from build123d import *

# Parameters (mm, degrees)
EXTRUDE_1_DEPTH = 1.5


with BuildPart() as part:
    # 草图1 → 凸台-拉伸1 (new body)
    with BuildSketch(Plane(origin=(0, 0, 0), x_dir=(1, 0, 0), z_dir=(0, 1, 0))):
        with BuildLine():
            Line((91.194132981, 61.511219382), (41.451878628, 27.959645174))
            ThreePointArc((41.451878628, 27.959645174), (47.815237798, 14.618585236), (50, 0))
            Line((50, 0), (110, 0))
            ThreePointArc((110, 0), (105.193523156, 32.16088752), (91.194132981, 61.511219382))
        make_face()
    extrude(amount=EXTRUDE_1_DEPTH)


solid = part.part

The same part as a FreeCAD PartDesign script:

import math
import FreeCAD as App
import Part
import Sketcher

V = App.Vector
Q = App.Units.Quantity

doc = App.newDocument("Part")
body = doc.addObject("PartDesign::Body", "Body")

# Sketch on XZ plane
sketch1 = body.newObject("Sketcher::SketchObject", "Sketch")
sketch1.AttachmentSupport = (doc.getObject("XZ_Plane"), [""])
sketch1.MapMode = "FlatFace"
sketch1.addGeometry(Part.LineSegment(V(91, -62, 0), V(41, -28, 0)), False)
sketch1.addGeometry(Part.ArcOfCircle(Part.Circle(V(0, 0, 0), V(0, 0, 1), 50), math.radians(-34), math.radians(0)), False)
sketch1.addGeometry(Part.LineSegment(V(50, 0, 0), V(110, 0, 0)), False)
sketch1.addGeometry(Part.ArcOfCircle(Part.Circle(V(0, 0, 0), V(0, 0, 1), 110), math.radians(-34), math.radians(0)), False)
sketch1.addConstraint(Sketcher.Constraint("Coincident", 0, 2, 1, 1))
sketch1.addConstraint(Sketcher.Constraint("Coincident", 1, 2, 2, 1))
sketch1.addConstraint(Sketcher.Constraint("Coincident", 2, 2, 3, 2))
sketch1.addConstraint(Sketcher.Constraint("Coincident", 3, 1, 0, 1))
sketch1.addConstraint(Sketcher.Constraint("Horizontal", 2))
sketch1.addConstraint(Sketcher.Constraint("Coincident", 1, 3, -1, 1))
sketch1.addConstraint(Sketcher.Constraint("Coincident", 3, 3, -1, 1))
sketch1.addConstraint(Sketcher.Constraint("PointOnObject", 1, 2, -1))
sketch1.addConstraint(Sketcher.Constraint("Radius", 1, Q("50 mm")))
sketch1.addConstraint(Sketcher.Constraint("Radius", 3, Q("110 mm")))
sketch1.addConstraint(Sketcher.Constraint("Angle", 0, Q("146 deg")))
sketch1.addConstraint(Sketcher.Constraint("DistanceX", -1, 1, 0, 2, Q("41.451879 mm")))
pad1 = body.newObject("PartDesign::Pad", "Pad")
pad1.Profile = sketch1
pad1.Length = 1.5
pad1.Reversed = True

doc.recompute()
